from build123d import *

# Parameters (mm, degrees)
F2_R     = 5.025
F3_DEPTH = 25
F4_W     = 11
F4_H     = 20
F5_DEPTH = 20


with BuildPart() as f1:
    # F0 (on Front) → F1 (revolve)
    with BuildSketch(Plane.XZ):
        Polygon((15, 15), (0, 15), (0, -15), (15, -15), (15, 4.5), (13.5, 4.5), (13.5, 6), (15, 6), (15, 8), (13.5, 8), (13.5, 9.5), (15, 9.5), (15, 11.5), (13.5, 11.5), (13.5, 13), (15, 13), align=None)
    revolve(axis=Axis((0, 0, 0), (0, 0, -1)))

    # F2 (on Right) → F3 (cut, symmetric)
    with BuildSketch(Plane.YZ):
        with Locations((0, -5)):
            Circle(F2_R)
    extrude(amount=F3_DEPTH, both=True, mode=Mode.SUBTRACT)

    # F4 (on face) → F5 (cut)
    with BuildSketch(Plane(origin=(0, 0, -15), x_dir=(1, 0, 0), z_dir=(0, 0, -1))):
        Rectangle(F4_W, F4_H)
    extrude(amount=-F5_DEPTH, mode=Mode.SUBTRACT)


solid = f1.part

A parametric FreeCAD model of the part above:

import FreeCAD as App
import Part
import Sketcher
Q = App.Units.Quantity

doc = App.newDocument("Part")
body = doc.addObject("PartDesign::Body", "Body")

sketch1 = doc.addObject("Sketcher::SketchObject", "Sketch")
body.addObject(sketch1)
sketch1.AttachmentSupport = (doc.XZ_Plane, [""])
sketch1.MapMode = "FlatFace"
sketch1.addGeometry([
    Part.LineSegment(App.Vector(15, 15, 0), App.Vector(0, 15, 0)),
    Part.LineSegment(App.Vector(0, 15, 0), App.Vector(0, -15, 0)),
    Part.LineSegment(App.Vector(0, -15, 0), App.Vector(15, -15, 0)),
    Part.LineSegment(App.Vector(15, -15, 0), App.Vector(15, 4.5, 0)),
    Part.LineSegment(App.Vector(15, 4.5, 0), App.Vector(13.5, 4.5, 0)),
    Part.LineSegment(App.Vector(13.5, 4.5, 0), App.Vector(13.5, 6, 0)),
    Part.LineSegment(App.Vector(13.5, 6, 0), App.Vector(15, 6, 0)),
    Part.LineSegment(App.Vector(15, 6, 0), App.Vector(15, 8, 0)),
    Part.LineSegment(App.Vector(15, 8, 0), App.Vector(13.5, 8, 0)),
    Part.LineSegment(App.Vector(13.5, 8, 0), App.Vector(13.5, 9.5, 0)),
    Part.LineSegment(App.Vector(13.5, 9.5, 0), App.Vector(15, 9.5, 0)),
    Part.LineSegment(App.Vector(15, 9.5, 0), App.Vector(15, 11.5, 0)),
    Part.LineSegment(App.Vector(15, 11.5, 0), App.Vector(13.5, 11.5, 0)),
    Part.LineSegment(App.Vector(13.5, 11.5, 0), App.Vector(13.5, 13, 0)),
    Part.LineSegment(App.Vector(13.5, 13, 0), App.Vector(15, 13, 0)),
    Part.LineSegment(App.Vector(15, 13, 0), App.Vector(15, 15, 0)),
], False)
sketch1.addConstraint([
    Sketcher.Constraint("Coincident", 0, 2, 1, 1),
    Sketcher.Constraint("Coincident", 1, 2, 2, 1),
    Sketcher.Constraint("Coincident", 2, 2, 3, 1),
    Sketcher.Constraint("Coincident", 3, 2, 4, 1),
    Sketcher.Constraint("Coincident", 4, 2, 5, 1),
    Sketcher.Constraint("Coincident", 5, 2, 6, 1),
    Sketcher.Constraint("Coincident", 6, 2, 7, 1),
    Sketcher.Constraint("Coincident", 7, 2, 8, 1),
    Sketcher.Constraint("Coincident", 8, 2, 9, 1),
    Sketcher.Constraint("Coincident", 9, 2, 10, 1),
    Sketcher.Constraint("Coincident", 10, 2, 11, 1),
    Sketcher.Constraint("Coincident", 11, 2, 12, 1),
    Sketcher.Constraint("Coincident", 12, 2, 13, 1),
    Sketcher.Constraint("Coincident", 13, 2, 14, 1),
    Sketcher.Constraint("Coincident", 14, 2, 15, 1),
    Sketcher.Constraint("Coincident", 15, 2, 0, 1),
    Sketcher.Constraint("Horizontal", 0),
    Sketcher.Constraint("Vertical", 1),
    Sketcher.Constraint("Horizontal", 2),
    Sketcher.Constraint("Vertical", 3),
    Sketcher.Constraint("Horizontal", 4),
    Sketcher.Constraint("Vertical", 5),
    Sketcher.Constraint("Horizontal", 6),
    Sketcher.Constraint("Vertical", 7),
    Sketcher.Constraint("Horizontal", 8),
    Sketcher.Constraint("Vertical", 9),
    Sketcher.Constraint("Horizontal", 10),
    Sketcher.Constraint("Vertical", 11),
    Sketcher.Constraint("Horizontal", 12),
    Sketcher.Constraint("Vertical", 13),
    Sketcher.Constraint("Horizontal", 14),
    Sketcher.Constraint("Vertical", 15),
    Sketcher.Constraint("Symmetric", 0, 2, 1, 2, -1, 1),
    Sketcher.Constraint("Vertical", 3, 2, 6, 2),
    Sketcher.Constraint("Vertical", 5, 2, 8, 2),
    Sketcher.Constraint("Vertical", 7, 2, 10, 2),
    Sketcher.Constraint("Vertical", 9, 2, 12, 2),
    Sketcher.Constraint("Vertical", 11, 2, 14, 2),
    Sketcher.Constraint("Equal", 14, 5),
    Sketcher.Constraint("Equal", 5, 9),
    Sketcher.Constraint("Equal", 7, 11),
    Sketcher.Constraint("Equal", 9, 13),
    Sketcher.Constraint("Equal", 11, 15),
    Sketcher.Constraint("DistanceX", 0, 2, 0, 1, Q("15 mm")),
    Sketcher.Constraint("DistanceY", 1, 2, 1, 1, Q("30 mm")),
    Sketcher.Constraint("DistanceY", 7, 1, 7, 2, Q("2 mm")),
    Sketcher.Constraint("DistanceX", 4, 2, 4, 1, Q("1.5 mm")),
])
revolution = doc.addObject("PartDesign::Revolution", "Revolution")
body.addObject(revolution)
revolution.Profile = sketch1
revolution.ReferenceAxis = (sketch1, ["V_Axis"])
revolution.Angle = 360

sketch2 = doc.addObject("Sketcher::SketchObject", "Sketch001")
body.addObject(sketch2)
sketch2.AttachmentSupport = (doc.YZ_Plane, [""])
sketch2.MapMode = "FlatFace"
sketch2.addGeometry(Part.Circle(App.Vector(0, -5, 0), App.Vector(0, 0, 1), 5.025), False)
sketch2.addConstraint([
    Sketcher.Constraint("PointOnObject", 0, 3, -2),
    Sketcher.Constraint("Diameter", 0, Q("10.05 mm")),
    Sketcher.Constraint("DistanceY", 0, 3, -1, 1, Q("5 mm")),
])
pocket1 = doc.addObject("PartDesign::Pocket", "Pocket")
body.addObject(pocket1)
pocket1.Profile = sketch2
pocket1.Length = 50
pocket1.Midplane = True

sketch3 = doc.addObject("Sketcher::SketchObject", "Sketch002")
body.addObject(sketch3)
sketch3.AttachmentSupport = (doc.XY_Plane, [""])
sketch3.MapMode = "FlatFace"
sketch3.AttachmentOffset = App.Placement(App.Vector(0, 0, -15), App.Rotation())
sketch3.addGeometry([
    Part.LineSegment(App.Vector(-5.5, -10, 0), App.Vector(-5.5, 10, 0)),
    Part.LineSegment(App.Vector(-5.5, 10, 0), App.Vector(5.5, 10, 0)),
    Part.LineSegment(App.Vector(5.5, 10, 0), App.Vector(5.5, -10, 0)),
    Part.LineSegment(App.Vector(5.5, -10, 0), App.Vector(-5.5, -10, 0)),
], False)
sketch3.addConstraint([
    Sketcher.Constraint("Coincident", 0, 2, 1, 1),
    Sketcher.Constraint("Coincident", 1, 2, 2, 1),
    Sketcher.Constraint("Coincident", 2, 2, 3, 1),
    Sketcher.Constraint("Coincident", 3, 2, 0, 1),
    Sketcher.Constraint("Vertical", 0),
    Sketcher.Constraint("Horizontal", 1),
    Sketcher.Constraint("Vertical", 2),
    Sketcher.Constraint("Horizontal", 3),
    Sketcher.Constraint("Symmetric", 0, 2, 2, 2, -1, 1),
    Sketcher.Constraint("DistanceX", 1, 1, 1, 2, Q("11 mm")),
    Sketcher.Constraint("DistanceY", 0, 1, 0, 2, Q("20 mm")),
])
pocket2 = doc.addObject("PartDesign::Pocket", "Pocket001")
body.addObject(pocket2)
pocket2.Profile = sketch3
pocket2.Length = 20
pocket2.Reversed = True

doc.recompute()
